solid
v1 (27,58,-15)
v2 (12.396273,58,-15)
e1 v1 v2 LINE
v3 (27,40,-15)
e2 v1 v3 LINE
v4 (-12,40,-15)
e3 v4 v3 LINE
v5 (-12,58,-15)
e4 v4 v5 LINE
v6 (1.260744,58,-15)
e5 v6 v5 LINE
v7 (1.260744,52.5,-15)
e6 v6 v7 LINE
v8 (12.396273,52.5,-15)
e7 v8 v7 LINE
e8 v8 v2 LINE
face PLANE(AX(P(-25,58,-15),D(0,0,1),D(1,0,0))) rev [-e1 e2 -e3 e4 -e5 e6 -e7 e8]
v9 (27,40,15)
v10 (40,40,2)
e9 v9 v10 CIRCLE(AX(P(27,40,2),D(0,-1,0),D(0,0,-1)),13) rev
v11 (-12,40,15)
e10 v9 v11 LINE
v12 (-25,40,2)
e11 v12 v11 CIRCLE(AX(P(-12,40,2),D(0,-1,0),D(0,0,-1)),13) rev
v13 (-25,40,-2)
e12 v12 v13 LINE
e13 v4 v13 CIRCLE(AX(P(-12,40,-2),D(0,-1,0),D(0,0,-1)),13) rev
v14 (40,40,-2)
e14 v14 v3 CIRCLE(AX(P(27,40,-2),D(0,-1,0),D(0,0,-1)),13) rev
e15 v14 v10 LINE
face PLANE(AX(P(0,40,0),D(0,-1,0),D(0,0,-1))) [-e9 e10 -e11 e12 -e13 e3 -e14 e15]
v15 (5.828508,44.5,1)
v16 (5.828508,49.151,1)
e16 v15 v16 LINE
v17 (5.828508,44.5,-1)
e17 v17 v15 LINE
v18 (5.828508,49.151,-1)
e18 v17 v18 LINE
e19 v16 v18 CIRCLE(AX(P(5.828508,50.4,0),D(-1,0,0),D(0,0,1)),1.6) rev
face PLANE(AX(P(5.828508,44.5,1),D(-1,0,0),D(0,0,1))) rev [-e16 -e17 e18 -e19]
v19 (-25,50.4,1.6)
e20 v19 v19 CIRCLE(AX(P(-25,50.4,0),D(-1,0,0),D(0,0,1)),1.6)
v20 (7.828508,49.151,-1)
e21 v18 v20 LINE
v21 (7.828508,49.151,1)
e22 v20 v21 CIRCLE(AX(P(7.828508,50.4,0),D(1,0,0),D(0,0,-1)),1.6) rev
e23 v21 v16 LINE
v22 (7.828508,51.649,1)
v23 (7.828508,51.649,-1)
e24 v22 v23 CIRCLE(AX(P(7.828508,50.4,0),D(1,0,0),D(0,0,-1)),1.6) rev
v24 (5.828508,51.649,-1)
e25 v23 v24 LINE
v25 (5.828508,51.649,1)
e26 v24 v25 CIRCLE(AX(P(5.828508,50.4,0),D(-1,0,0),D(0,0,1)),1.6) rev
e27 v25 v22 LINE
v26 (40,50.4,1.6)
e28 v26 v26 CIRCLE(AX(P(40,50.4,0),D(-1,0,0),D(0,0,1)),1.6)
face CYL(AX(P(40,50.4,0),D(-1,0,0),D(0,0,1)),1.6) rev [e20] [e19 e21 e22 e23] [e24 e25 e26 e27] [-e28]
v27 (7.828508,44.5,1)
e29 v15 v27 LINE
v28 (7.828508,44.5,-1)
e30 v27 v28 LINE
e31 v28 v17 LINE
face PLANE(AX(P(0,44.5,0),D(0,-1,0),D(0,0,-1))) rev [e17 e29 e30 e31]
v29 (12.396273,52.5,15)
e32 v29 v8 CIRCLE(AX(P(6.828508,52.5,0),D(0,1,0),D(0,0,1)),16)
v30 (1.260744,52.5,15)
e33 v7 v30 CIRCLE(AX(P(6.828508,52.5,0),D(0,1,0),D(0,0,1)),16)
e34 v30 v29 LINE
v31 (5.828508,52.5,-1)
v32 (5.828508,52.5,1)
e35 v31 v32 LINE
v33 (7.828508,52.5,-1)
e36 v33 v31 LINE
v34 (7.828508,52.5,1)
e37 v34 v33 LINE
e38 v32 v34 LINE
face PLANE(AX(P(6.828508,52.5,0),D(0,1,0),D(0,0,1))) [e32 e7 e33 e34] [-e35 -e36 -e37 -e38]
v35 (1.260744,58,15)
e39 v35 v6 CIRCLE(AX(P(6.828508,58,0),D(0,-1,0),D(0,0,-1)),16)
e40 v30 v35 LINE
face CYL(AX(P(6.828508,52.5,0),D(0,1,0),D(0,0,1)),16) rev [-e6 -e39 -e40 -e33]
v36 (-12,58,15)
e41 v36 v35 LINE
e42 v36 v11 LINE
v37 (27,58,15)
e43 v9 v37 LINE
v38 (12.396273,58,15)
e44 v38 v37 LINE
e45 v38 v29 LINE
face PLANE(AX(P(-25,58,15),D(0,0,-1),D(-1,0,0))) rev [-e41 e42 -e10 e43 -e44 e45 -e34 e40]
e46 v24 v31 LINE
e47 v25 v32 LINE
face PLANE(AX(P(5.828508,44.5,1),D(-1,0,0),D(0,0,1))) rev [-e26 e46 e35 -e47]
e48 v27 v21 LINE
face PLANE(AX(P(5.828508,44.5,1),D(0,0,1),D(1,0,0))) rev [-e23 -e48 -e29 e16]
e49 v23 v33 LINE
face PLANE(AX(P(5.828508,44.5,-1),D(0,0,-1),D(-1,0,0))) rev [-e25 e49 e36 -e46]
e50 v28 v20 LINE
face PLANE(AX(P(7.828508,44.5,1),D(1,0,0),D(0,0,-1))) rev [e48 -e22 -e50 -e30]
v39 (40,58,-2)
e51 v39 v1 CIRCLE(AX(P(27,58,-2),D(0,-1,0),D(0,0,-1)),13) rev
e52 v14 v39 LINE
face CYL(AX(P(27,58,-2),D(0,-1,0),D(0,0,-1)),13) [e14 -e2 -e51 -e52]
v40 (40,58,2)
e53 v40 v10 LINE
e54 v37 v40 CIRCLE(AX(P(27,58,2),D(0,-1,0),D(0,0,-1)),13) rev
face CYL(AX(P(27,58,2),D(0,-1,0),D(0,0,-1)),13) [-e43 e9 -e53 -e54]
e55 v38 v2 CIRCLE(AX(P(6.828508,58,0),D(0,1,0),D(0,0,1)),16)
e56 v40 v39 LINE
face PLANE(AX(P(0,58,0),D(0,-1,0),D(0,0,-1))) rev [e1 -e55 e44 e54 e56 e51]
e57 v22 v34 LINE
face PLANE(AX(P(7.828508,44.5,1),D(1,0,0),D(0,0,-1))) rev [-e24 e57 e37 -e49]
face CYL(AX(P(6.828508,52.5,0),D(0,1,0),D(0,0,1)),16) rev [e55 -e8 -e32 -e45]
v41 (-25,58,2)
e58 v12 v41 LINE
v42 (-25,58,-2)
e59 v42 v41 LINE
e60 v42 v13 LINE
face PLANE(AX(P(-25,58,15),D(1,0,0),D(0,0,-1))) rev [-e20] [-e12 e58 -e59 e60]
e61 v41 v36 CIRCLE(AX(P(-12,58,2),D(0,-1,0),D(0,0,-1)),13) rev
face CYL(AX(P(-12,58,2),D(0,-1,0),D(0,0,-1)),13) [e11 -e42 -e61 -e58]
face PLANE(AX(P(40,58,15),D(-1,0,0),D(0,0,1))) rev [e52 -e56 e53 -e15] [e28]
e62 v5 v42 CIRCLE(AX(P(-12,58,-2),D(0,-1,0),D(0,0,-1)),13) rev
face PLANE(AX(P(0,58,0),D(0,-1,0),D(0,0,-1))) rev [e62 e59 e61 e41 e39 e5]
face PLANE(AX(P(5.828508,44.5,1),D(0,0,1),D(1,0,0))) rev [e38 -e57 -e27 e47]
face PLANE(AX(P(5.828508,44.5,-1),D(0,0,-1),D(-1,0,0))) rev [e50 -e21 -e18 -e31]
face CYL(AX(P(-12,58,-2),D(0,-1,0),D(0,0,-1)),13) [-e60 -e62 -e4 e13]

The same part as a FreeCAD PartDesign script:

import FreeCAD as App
import Part
import Sketcher

V = App.Vector
Q = App.Units.Quantity


def edges_at(feature, points):
    """Names of the edges that pass closest to the given points."""
    edges = feature.Shape.Edges
    near = lambda p: min(range(len(edges)), key=lambda i: edges[i].distToShape(Part.Vertex(*p))[0])
    return sorted({f"Edge{near(p) + 1}" for p in points})

doc = App.newDocument("Part")
body = doc.addObject("PartDesign::Body", "Body")

# Sketch on XZ plane
sketch1 = doc.addObject("Sketcher::SketchObject", "Sketch")
body.addObject(sketch1)
sketch1.AttachmentSupport = (doc.XZ_Plane, [""])
sketch1.MapMode = "FlatFace"
sketch1.addGeometry([
    Part.LineSegment(V(-25, -15, 0), V(-25, 15, 0)),
    Part.LineSegment(V(-25, 15, 0), V(40, 15, 0)),
    Part.LineSegment(V(40, 15, 0), V(40, -15, 0)),
    Part.LineSegment(V(40, -15, 0), V(-25, -15, 0)),
], False)
sketch1.addConstraint([
    Sketcher.Constraint("Coincident", 0, 2, 1, 1),
    Sketcher.Constraint("Coincident", 1, 2, 2, 1),
    Sketcher.Constraint("Coincident", 2, 2, 3, 1),
    Sketcher.Constraint("Coincident", 3, 2, 0, 1),
    Sketcher.Constraint("Vertical", 0),
    Sketcher.Constraint("Horizontal", 1),
    Sketcher.Constraint("Vertical", 2),
    Sketcher.Constraint("Horizontal", 3),
    Sketcher.Constraint("DistanceX", 1, 1, 1, 2, Q("65 mm")),
    Sketcher.Constraint("DistanceY", 0, 1, 0, 2, Q("30 mm")),
    Sketcher.Constraint("DistanceX", 0, 2, -1, 1, Q("25 mm")),
    Sketcher.Constraint("DistanceY", -1, 1, 0, 2, Q("15 mm")),
])
pad1 = doc.addObject("PartDesign::Pad", "Pad")
body.addObject(pad1)
pad1.Profile = sketch1
pad1.Length = 58
pad1.Reversed = True
doc.recompute()

fillet = doc.addObject("PartDesign::Fillet", "Fillet")
body.addObject(fillet)
fillet.Base = (pad1, edges_at(pad1, [
    (40, 29, 15),
    (-25, 29, 15),
    (-25, 29, -15),
    (40, 29, -15),
]))
fillet.Radius = 13

# Sketch on XZ plane
sketch2 = doc.addObject("Sketcher::SketchObject", "Sketch001")
body.addObject(sketch2)
sketch2.AttachmentSupport = (doc.XZ_Plane, [""])
sketch2.MapMode = "FlatFace"
sketch2.AttachmentOffset = App.Placement(V(0, 0, 10), App.Rotation())
sketch2.addGeometry([
    Part.LineSegment(V(42, -16, 0), V(42, 16, 0)),
    Part.LineSegment(V(42, 16, 0), V(-42, 16, 0)),
    Part.LineSegment(V(-42, 16, 0), V(-42, -16, 0)),
    Part.LineSegment(V(-42, -16, 0), V(42, -16, 0)),
], False)
sketch2.addConstraint([
    Sketcher.Constraint("Coincident", 0, 2, 1, 1),
    Sketcher.Constraint("Coincident", 1, 2, 2, 1),
    Sketcher.Constraint("Coincident", 2, 2, 3, 1),
    Sketcher.Constraint("Coincident", 3, 2, 0, 1),
    Sketcher.Constraint("Vertical", 0),
    Sketcher.Constraint("Horizontal", 1),
    Sketcher.Constraint("Vertical", 2),
    Sketcher.Constraint("Horizontal", 3),
    Sketcher.Constraint("DistanceY", 0, 1, 0, 2, Q("31.698448 mm")),
    Sketcher.Constraint("DistanceX", 1, 2, 1, 1, Q("83.696096 mm")),
    Sketcher.Constraint("DistanceX", -1, 1, 0, 2, Q("41.905489 mm")),
    Sketcher.Constraint("DistanceY", -1, 1, 0, 2, Q("15.818745 mm")),
])
pocket1 = doc.addObject("PartDesign::Pocket", "Pocket")
body.addObject(pocket1)
pocket1.Profile = sketch2
pocket1.Length = 50

# Sketch on XZ plane
sketch3 = doc.addObject("Sketcher::SketchObject", "Sketch002")
body.addObject(sketch3)
sketch3.AttachmentSupport = (doc.XZ_Plane, [""])
sketch3.MapMode = "FlatFace"
sketch3.AttachmentOffset = App.Placement(V(0, 0, -58), App.Rotation())
sketch3.addGeometry(Part.Circle(V(7, 0, 0), V(0, 0, 1), 16), False)
sketch3.addConstraint([
    Sketcher.Constraint("PointOnObject", 0, 3, -1),
    Sketcher.Constraint("Diameter", 0, Q("32 mm")),
    Sketcher.Constraint("DistanceX", -1, 1, 0, 3, Q("6.828508 mm")),
])
pocket2 = doc.addObject("PartDesign::Pocket", "Pocket001")
body.addObject(pocket2)
pocket2.Profile = sketch3
pocket2.Length = 5.5
pocket2.Reversed = True

# Sketch on YZ plane
sketch4 = doc.addObject("Sketcher::SketchObject", "Sketch003")
body.addObject(sketch4)
sketch4.AttachmentSupport = (doc.YZ_Plane, [""])
sketch4.MapMode = "FlatFace"
sketch4.AttachmentOffset = App.Placement(V(0, 0, -25), App.Rotation())
sketch4.addGeometry(Part.Circle(V(50.4, 0, 0), V(0, 0, 1), 1.6), False)
sketch4.addConstraint([
    Sketcher.Constraint("PointOnObject", 0, 3, -1),
    Sketcher.Constraint("Diameter", 0, Q("3.2 mm")),
    Sketcher.Constraint("DistanceX", -1, 1, 0, 3, Q("50.4 mm")),
])
pocket3 = doc.addObject("PartDesign::Pocket", "Pocket002")
body.addObject(pocket3)
pocket3.Profile = sketch4
pocket3.Type = "ThroughAll"
pocket3.Reversed = True

# Sketch on XZ plane
sketch5 = doc.addObject("Sketcher::SketchObject", "Sketch004")
body.addObject(sketch5)
sketch5.AttachmentSupport = (doc.XZ_Plane, [""])
sketch5.MapMode = "FlatFace"
sketch5.AttachmentOffset = App.Placement(V(0, 0, -52.5), App.Rotation())
sketch5.addGeometry([
    Part.LineSegment(V(5.8, -1, 0), V(5.8, 1, 0)),
    Part.LineSegment(V(5.8, 1, 0), V(7.8, 1, 0)),
    Part.LineSegment(V(7.8, 1, 0), V(7.8, -1, 0)),
    Part.LineSegment(V(7.8, -1, 0), V(5.8, -1, 0)),
], False)
sketch5.addConstraint([
    Sketcher.Constraint("Coincident", 0, 2, 1, 1),
    Sketcher.Constraint("Coincident", 1, 2, 2, 1),
    Sketcher.Constraint("Coincident", 2, 2, 3, 1),
    Sketcher.Constraint("Coincident", 3, 2, 0, 1),
    Sketcher.Constraint("Vertical", 0),
    Sketcher.Constraint("Horizontal", 1),
    Sketcher.Constraint("Vertical", 2),
    Sketcher.Constraint("Horizontal", 3),
    Sketcher.Constraint("Equal", 3, 0),
    Sketcher.Constraint("DistanceX", 1, 1, 1, 2, Q("2 mm")),
    Sketcher.Constraint("DistanceY", -1, 1, 0, 2, Q("1 mm")),
    Sketcher.Constraint("DistanceX", -1, 1, 0, 2, Q("5.828508 mm")),
])
pocket4 = doc.addObject("PartDesign::Pocket", "Pocket003")
body.addObject(pocket4)
pocket4.Profile = sketch5
pocket4.Length = 8
pocket4.Reversed = True

doc.recompute()
